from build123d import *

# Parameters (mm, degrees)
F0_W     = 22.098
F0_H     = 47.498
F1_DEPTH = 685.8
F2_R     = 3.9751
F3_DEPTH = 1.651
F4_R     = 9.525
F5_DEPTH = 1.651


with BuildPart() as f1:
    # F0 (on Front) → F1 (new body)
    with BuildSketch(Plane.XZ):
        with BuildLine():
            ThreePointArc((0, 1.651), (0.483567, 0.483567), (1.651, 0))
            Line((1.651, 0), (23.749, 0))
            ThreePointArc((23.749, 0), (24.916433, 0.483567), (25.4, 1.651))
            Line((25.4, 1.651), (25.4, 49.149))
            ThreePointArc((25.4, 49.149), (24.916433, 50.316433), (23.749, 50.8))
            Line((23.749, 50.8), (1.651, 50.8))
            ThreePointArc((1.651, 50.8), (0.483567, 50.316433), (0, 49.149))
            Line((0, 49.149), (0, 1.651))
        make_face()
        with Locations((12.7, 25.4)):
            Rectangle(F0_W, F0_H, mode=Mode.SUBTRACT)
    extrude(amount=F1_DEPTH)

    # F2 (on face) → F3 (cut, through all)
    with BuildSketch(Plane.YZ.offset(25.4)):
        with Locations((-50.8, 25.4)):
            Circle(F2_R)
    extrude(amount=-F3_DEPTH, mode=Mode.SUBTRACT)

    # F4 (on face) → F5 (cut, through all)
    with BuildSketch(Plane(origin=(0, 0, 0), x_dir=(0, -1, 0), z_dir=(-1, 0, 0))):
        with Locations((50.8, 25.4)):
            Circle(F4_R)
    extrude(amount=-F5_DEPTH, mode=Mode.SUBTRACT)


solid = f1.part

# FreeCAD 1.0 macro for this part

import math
import FreeCAD as App
import Part
import Sketcher
from FreeCAD import Vector
Q = App.Units.Quantity


def add_polygon(sketch, points):
    """Adds a closed chain of lines whose ends are joined by coincident constraints."""
    first, n = sketch.GeometryCount, len(points)
    for a, b in zip(points, points[1:] + points[:1]):
        sketch.addGeometry(Part.LineSegment(App.Vector(*a, 0), App.Vector(*b, 0)), False)
    for i in range(n):
        sketch.addConstraint(Sketcher.Constraint("Coincident", first + i, 2, first + (i + 1) % n, 1))

doc = App.newDocument("Part")
body = doc.addObject("PartDesign::Body", "Body")

# Sketch on XZ plane
sketch1 = body.newObject("Sketcher::SketchObject", "Sketch")
sketch1.AttachmentSupport = (doc.getObject("XZ_Plane"), [""])
sketch1.MapMode = "FlatFace"
sketch1.addGeometry(Part.ArcOfCircle(Part.Circle(Vector(1.7, 1.7, 0), Vector(0, 0, 1), 1.7), math.radians(-180), math.radians(-90)), False)  # 0
sketch1.addGeometry(Part.LineSegment(Vector(1.7, 0, 0), Vector(23.7, 0, 0)), False)  # 1
sketch1.addGeometry(Part.ArcOfCircle(Part.Circle(Vector(23.7, 1.7, 0), Vector(0, 0, 1), 1.7), math.radians(-90), math.radians(0)), False)  # 2
sketch1.addGeometry(Part.LineSegment(Vector(25.4, 1.7, 0), Vector(25.4, 49.1, 0)), False)  # 3
sketch1.addGeometry(Part.ArcOfCircle(Part.Circle(Vector(23.7, 49.1, 0), Vector(0, 0, 1), 1.7), math.radians(0), math.radians(90)), False)  # 4
sketch1.addGeometry(Part.LineSegment(Vector(23.7, 50.8, 0), Vector(1.7, 50.8, 0)), False)  # 5
sketch1.addGeometry(Part.ArcOfCircle(Part.Circle(Vector(1.7, 49.1, 0), Vector(0, 0, 1), 1.7), math.radians(90), math.radians(180)), False)  # 6
sketch1.addGeometry(Part.LineSegment(Vector(0, 49.1, 0), Vector(0, 1.7, 0)), False)  # 7
add_polygon(sketch1, [(23.7, 1.7), (1.7, 1.7), (1.7, 49.1), (23.7, 49.1)])  # lines 8-11
sketch1.addConstraint([
    Sketcher.Constraint("Tangent", 0, 2, 1, 1),
    Sketcher.Constraint("Tangent", 1, 2, 2, 1),
    Sketcher.Constraint("Tangent", 2, 2, 3, 1),
    Sketcher.Constraint("Tangent", 3, 2, 4, 1),
    Sketcher.Constraint("Tangent", 4, 2, 5, 1),
    Sketcher.Constraint("Tangent", 5, 2, 6, 1),
    Sketcher.Constraint("Tangent", 6, 2, 7, 1),
    Sketcher.Constraint("Tangent", 7, 2, 0, 1),
    Sketcher.Constraint("Horizontal", 1),
    Sketcher.Constraint("Vertical", 3),
    Sketcher.Constraint("Horizontal", 5),
    Sketcher.Constraint("Vertical", 7),
    Sketcher.Constraint("Horizontal", 8),
    Sketcher.Constraint("Vertical", 9),
    Sketcher.Constraint("Horizontal", 10),
    Sketcher.Constraint("Vertical", 11),
    Sketcher.Constraint("Coincident", 8, 2, 0, 3),
    Sketcher.Constraint("Coincident", 9, 2, 6, 3),
    Sketcher.Constraint("Coincident", 10, 2, 4, 3),
    Sketcher.Constraint("Equal", 0, 2),
    Sketcher.Constraint("PointOnObject", 0, 2, -1),
    Sketcher.Constraint("PointOnObject", 6, 2, -2),
    Sketcher.Constraint("DistanceX", -1, 1, 2, 2, Q("1 in")),
    Sketcher.Constraint("DistanceY", -1, 1, 4, 2, Q("2 in")),
    Sketcher.Constraint("Radius", 0, Q("0.065 in")),
])
pad1 = body.newObject("PartDesign::Pad", "Pad")
pad1.Profile = sketch1
pad1.Length = Q("27 in")

# Sketch on YZ plane
sketch2 = body.newObject("Sketcher::SketchObject", "Sketch001")
sketch2.AttachmentSupport = (doc.getObject("YZ_Plane"), [""])
sketch2.MapMode = "FlatFace"
sketch2.AttachmentOffset = App.Placement(Vector(0, 0, 1 * 25.4), App.Rotation())
sketch2.addGeometry(Part.Circle(Vector(-50.8, 25.4, 0), Vector(0, 0, 1), 4), False)
sketch2.addConstraint([
    Sketcher.Constraint("Diameter", 0, Q("0.313 in")),
    Sketcher.Constraint("DistanceX", 0, 3, -1, 1, Q("2 in")),
    Sketcher.Constraint("DistanceY", -1, 1, 0, 3, Q("1 in")),
])
pocket1 = body.newObject("PartDesign::Pocket", "Pocket")
pocket1.Profile = sketch2
pocket1.Length = Q("0.065 in")

# Sketch on YZ plane
sketch3 = body.newObject("Sketcher::SketchObject", "Sketch002")
sketch3.AttachmentSupport = (doc.getObject("YZ_Plane"), [""])
sketch3.MapMode = "FlatFace"
sketch3.addGeometry(Part.Circle(Vector(-51, 25, 0), Vector(0, 0, 1), 10), False)
sketch3.addConstraint([
    Sketcher.Constraint("Diameter", 0, Q("0.75 in")),
    Sketcher.Constraint("DistanceX", 0, 3, -1, 1, Q("2 in")),
    Sketcher.Constraint("DistanceY", -1, 1, 0, 3, Q("1 in")),
])
pocket2 = body.newObject("PartDesign::Pocket", "Pocket001")
pocket2.Profile = sketch3
pocket2.Length = Q("0.065 in")
pocket2.Reversed = True

doc.recompute()
